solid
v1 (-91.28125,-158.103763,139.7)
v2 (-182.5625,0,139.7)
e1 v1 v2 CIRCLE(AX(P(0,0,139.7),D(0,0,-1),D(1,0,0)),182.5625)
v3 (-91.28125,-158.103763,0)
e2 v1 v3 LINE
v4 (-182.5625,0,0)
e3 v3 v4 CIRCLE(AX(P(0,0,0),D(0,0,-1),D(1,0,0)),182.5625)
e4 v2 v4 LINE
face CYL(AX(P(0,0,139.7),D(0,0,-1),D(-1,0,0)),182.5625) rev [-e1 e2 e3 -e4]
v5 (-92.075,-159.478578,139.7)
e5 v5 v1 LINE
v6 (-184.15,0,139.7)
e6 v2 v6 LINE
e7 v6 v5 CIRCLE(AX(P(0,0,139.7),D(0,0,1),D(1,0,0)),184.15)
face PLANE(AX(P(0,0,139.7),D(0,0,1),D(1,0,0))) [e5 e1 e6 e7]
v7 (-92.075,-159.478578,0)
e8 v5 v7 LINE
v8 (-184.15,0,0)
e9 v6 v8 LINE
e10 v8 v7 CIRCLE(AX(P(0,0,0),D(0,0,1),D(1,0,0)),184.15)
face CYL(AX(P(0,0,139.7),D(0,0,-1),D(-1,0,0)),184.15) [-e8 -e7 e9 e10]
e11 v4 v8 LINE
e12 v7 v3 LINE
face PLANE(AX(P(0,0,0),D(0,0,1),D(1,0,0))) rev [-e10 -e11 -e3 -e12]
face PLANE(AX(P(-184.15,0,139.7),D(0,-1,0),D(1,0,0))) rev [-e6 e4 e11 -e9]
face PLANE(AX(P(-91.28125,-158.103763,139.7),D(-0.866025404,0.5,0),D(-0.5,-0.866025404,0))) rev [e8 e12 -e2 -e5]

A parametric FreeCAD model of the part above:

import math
import FreeCAD as App
import Part
import Sketcher
Q = App.Units.Quantity

doc = App.newDocument("Part")
body = doc.addObject("PartDesign::Body", "Body")

# Sketch on XY plane
sketch1 = body.newObject("Sketcher::SketchObject", "Sketch")
sketch1.AttachmentSupport = (doc.getObject("XY_Plane"), [""])
sketch1.MapMode = "FlatFace"
sketch1.addGeometry([
    Part.LineSegment(App.Vector(-182.5625, 0, 0), App.Vector(-184.15, 0, 0)),
    Part.ArcOfCircle(Part.Circle(App.Vector(0, 0, 0), App.Vector(0, 0, 1), 184.15), math.radians(180), math.radians(240)),
    Part.LineSegment(App.Vector(-92.075, -159.478578, 0), App.Vector(-91.28125, -158.103763, 0)),
    Part.ArcOfCircle(Part.Circle(App.Vector(0, 0, 0), App.Vector(0, 0, 1), 182.5625), math.radians(-180), math.radians(-120)),
], False)
sketch1.addConstraint([
    Sketcher.Constraint("Coincident", 0, 2, 1, 1),
    Sketcher.Constraint("Coincident", 1, 2, 2, 1),
    Sketcher.Constraint("Coincident", 2, 2, 3, 2),
    Sketcher.Constraint("Coincident", 3, 1, 0, 1),
    Sketcher.Constraint("Horizontal", 0),
    Sketcher.Constraint("Coincident", 1, 3, -1, 1),
    Sketcher.Constraint("Coincident", 3, 3, -1, 1),
    Sketcher.Constraint("PointOnObject", 0, 2, -1),
    Sketcher.Constraint("Radius", 1, Q("7.25 in")),
    Sketcher.Constraint("Angle", 2, Q("60 deg")),
    Sketcher.Constraint("Radius", 3, Q("7.1875 in")),
    Sketcher.Constraint("DistanceX", 1, 2, -1, 1, Q("3.625 in")),
])
pad1 = body.newObject("PartDesign::Pad", "Pad")
pad1.Profile = sketch1
pad1.Length = Q("5.5 in")

doc.recompute()
